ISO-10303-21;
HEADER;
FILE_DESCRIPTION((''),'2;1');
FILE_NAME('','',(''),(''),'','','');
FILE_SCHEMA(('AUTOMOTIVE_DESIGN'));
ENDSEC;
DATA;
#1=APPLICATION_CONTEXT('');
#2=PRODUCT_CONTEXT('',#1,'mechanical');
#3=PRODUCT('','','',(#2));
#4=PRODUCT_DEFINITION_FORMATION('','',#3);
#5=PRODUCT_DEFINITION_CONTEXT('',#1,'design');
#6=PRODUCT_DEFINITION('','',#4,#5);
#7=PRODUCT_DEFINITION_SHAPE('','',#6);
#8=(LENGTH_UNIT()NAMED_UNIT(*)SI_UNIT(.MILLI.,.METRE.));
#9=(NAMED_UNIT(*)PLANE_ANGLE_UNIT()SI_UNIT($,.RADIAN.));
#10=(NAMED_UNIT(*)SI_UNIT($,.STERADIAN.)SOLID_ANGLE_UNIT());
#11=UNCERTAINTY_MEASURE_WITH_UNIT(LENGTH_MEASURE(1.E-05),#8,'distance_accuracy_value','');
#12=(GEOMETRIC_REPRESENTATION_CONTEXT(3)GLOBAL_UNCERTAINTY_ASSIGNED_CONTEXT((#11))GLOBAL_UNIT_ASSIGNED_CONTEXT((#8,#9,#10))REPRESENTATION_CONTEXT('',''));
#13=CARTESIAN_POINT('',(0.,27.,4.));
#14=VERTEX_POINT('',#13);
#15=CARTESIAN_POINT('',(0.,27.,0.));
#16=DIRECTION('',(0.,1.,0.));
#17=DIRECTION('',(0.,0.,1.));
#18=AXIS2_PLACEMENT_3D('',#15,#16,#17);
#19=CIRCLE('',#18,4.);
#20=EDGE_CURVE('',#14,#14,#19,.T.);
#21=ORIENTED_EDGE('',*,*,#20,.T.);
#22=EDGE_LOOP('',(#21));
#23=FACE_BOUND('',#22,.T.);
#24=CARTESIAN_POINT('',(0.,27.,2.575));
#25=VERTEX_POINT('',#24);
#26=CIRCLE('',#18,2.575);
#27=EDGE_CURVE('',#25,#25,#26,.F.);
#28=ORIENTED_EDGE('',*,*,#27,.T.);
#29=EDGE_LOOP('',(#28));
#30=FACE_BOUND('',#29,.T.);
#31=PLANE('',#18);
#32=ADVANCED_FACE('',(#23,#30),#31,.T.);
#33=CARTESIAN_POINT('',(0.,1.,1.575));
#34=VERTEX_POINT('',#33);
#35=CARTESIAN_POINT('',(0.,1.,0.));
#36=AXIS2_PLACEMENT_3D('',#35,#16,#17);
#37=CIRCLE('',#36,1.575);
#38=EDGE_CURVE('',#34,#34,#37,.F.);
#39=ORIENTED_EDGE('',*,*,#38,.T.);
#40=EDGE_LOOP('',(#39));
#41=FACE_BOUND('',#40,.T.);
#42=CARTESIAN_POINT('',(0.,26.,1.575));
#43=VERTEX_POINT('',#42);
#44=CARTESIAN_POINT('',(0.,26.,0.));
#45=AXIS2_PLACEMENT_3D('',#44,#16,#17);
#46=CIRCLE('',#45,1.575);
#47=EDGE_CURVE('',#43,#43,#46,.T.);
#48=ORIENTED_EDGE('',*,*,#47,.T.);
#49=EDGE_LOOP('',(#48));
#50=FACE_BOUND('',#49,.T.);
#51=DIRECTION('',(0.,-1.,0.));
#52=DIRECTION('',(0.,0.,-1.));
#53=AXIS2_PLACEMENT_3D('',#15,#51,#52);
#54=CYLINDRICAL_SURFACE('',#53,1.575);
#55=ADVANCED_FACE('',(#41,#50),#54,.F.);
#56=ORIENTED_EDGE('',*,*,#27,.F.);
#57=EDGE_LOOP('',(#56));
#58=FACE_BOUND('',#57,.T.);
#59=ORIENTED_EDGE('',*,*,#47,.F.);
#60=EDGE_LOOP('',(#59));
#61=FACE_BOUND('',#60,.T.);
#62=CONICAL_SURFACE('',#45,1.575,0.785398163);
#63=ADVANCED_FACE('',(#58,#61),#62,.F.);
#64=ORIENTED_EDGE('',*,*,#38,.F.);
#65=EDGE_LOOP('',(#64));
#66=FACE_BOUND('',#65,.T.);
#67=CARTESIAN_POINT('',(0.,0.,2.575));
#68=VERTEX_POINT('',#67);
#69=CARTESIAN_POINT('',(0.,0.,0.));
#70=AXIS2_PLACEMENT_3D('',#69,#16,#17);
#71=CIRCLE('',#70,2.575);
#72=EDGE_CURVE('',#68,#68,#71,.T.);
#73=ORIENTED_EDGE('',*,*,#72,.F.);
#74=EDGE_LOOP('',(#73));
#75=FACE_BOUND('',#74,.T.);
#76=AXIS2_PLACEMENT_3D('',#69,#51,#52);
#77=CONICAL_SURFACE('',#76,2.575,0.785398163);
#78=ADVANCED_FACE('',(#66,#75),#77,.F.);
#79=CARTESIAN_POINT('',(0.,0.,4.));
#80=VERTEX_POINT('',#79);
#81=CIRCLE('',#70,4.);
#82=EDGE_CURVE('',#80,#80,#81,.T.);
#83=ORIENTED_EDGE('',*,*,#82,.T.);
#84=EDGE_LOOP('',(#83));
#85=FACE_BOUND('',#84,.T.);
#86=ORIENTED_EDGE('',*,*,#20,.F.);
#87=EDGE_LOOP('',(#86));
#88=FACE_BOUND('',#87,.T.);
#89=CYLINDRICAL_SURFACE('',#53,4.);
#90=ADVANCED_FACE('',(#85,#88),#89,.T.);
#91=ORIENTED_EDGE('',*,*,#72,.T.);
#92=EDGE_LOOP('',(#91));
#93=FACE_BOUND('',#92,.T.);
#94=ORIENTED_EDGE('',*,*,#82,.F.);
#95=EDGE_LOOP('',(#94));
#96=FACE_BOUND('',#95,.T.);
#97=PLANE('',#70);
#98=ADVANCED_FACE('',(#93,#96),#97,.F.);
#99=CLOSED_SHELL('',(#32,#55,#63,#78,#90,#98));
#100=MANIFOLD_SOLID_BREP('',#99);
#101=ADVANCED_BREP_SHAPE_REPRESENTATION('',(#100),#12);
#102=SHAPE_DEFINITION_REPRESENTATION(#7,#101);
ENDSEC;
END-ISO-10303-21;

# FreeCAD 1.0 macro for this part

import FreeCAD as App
import Part
import Sketcher
Q = App.Units.Quantity


def edges_at(feature, points):
    """Names of the edges that pass closest to the given points."""
    edges = feature.Shape.Edges
    near = lambda p: min(range(len(edges)), key=lambda i: edges[i].distToShape(Part.Vertex(*p))[0])
    return sorted({f"Edge{near(p) + 1}" for p in points})

doc = App.newDocument("Part")
body = doc.addObject("PartDesign::Body", "Body")

# Sketch on XZ plane
sketch1 = doc.addObject("Sketcher::SketchObject", "Sketch")
body.addObject(sketch1)
sketch1.AttachmentSupport = (doc.XZ_Plane, [""])
sketch1.MapMode = "FlatFace"
sketch1.addGeometry(Part.Circle(App.Vector(0, 0, 0), App.Vector(0, 0, 1), 4), False)
sketch1.addGeometry(Part.Circle(App.Vector(0, 0, 0), App.Vector(0, 0, 1), 1.6), False)
sketch1.addConstraint(Sketcher.Constraint("Coincident", 0, 3, -1, 1))
sketch1.addConstraint(Sketcher.Constraint("Coincident", 1, 3, -1, 1))
sketch1.addConstraint(Sketcher.Constraint("Diameter", 0, Q("8 mm")))
sketch1.addConstraint(Sketcher.Constraint("Diameter", 1, Q("3.15 mm")))
pad1 = doc.addObject("PartDesign::Pad", "Pad")
body.addObject(pad1)
pad1.Profile = sketch1
pad1.Length = 27
pad1.Reversed = True
doc.recompute()

chamfer = doc.addObject("PartDesign::Chamfer", "Chamfer")
body.addObject(chamfer)
chamfer.Base = (pad1, edges_at(pad1, [(0, 0, -1.575), (0, 27, -1.575)]))
chamfer.Size = 1

doc.recompute()
